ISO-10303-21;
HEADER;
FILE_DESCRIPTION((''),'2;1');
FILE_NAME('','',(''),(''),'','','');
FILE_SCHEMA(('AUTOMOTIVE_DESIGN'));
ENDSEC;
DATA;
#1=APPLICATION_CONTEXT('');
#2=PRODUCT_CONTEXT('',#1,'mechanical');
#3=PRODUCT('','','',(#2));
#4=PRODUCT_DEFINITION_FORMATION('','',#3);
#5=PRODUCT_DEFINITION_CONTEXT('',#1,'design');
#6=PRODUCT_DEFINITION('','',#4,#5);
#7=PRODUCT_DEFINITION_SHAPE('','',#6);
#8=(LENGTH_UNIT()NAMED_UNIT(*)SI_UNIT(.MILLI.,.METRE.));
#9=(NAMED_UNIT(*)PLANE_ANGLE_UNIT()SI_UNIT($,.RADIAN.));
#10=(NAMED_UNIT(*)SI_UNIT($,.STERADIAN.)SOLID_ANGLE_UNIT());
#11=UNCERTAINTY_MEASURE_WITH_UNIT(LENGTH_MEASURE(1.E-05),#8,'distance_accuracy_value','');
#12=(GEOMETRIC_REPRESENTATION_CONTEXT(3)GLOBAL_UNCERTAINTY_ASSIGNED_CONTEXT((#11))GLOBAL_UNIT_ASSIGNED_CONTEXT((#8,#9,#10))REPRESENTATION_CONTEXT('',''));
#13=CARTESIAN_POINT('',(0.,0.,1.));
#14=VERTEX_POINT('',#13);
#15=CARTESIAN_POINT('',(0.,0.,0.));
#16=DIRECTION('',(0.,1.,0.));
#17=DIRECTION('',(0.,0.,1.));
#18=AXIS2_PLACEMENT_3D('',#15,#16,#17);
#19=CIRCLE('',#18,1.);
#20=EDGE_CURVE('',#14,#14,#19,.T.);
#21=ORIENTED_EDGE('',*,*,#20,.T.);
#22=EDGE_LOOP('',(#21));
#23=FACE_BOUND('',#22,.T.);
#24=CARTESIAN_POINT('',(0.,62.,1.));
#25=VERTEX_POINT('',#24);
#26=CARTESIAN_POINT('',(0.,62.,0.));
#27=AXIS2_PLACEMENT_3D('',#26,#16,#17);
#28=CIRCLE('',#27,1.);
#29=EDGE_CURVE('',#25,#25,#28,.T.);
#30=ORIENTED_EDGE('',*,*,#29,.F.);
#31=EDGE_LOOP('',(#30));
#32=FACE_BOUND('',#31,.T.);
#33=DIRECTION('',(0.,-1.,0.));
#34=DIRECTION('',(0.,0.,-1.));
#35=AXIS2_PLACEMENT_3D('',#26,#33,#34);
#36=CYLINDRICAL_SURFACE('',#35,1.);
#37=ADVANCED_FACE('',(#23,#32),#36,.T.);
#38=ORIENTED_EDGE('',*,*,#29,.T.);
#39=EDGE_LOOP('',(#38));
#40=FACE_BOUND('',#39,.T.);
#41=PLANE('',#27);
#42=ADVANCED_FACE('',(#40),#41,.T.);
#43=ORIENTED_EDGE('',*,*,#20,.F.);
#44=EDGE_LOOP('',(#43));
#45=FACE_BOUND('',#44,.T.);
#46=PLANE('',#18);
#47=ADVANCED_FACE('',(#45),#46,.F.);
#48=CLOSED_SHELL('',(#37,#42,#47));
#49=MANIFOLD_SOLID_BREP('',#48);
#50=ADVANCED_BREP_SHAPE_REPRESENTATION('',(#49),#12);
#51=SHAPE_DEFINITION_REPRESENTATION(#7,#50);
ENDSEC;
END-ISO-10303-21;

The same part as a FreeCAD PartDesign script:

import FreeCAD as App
import Part
import Sketcher
from FreeCAD import Vector
Q = App.Units.Quantity

doc = App.newDocument("Part")
body = doc.addObject("PartDesign::Body", "Body")

sketch1 = body.newObject("Sketcher::SketchObject", "Sketch")
sketch1.AttachmentSupport = (doc.getObject("XZ_Plane"), [""])
sketch1.MapMode = "FlatFace"
sketch1.addGeometry(Part.Circle(Vector(0, 0, 0), Vector(0, 0, 1), 1), False)
sketch1.addConstraint([
    Sketcher.Constraint("Coincident", 0, 3, -1, 1),
    Sketcher.Constraint("Diameter", 0, Q("2 mm")),
])
pad1 = body.newObject("PartDesign::Pad", "Pad")
pad1.Profile = sketch1
pad1.Length = 62
pad1.Reversed = True

doc.recompute()
